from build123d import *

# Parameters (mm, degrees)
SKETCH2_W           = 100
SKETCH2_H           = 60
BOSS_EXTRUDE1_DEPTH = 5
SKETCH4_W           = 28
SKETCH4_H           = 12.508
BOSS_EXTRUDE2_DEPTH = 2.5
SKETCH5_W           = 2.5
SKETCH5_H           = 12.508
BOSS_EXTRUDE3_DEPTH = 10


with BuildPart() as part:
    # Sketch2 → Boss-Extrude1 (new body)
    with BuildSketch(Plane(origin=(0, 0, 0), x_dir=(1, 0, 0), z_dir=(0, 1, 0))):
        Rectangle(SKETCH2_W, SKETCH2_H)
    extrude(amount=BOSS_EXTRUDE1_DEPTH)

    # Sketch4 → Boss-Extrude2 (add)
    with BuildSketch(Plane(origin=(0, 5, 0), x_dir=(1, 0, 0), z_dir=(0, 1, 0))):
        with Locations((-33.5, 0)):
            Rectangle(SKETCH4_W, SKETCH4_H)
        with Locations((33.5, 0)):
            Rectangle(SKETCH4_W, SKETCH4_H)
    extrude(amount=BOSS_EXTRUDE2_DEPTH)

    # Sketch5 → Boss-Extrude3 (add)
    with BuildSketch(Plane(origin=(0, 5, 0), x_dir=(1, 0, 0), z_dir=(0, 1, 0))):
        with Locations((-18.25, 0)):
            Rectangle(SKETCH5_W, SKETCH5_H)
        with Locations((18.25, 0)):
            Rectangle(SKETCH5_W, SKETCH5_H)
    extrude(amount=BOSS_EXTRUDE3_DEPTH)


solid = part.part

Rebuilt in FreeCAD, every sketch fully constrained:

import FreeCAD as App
import Part
import Sketcher

V = App.Vector
Q = App.Units.Quantity


def add_polygon(sketch, points):
    """Adds a closed chain of lines whose ends are joined by coincident constraints."""
    first, n = sketch.GeometryCount, len(points)
    for a, b in zip(points, points[1:] + points[:1]):
        sketch.addGeometry(Part.LineSegment(App.Vector(*a, 0), App.Vector(*b, 0)), False)
    for i in range(n):
        sketch.addConstraint(Sketcher.Constraint("Coincident", first + i, 2, first + (i + 1) % n, 1))

doc = App.newDocument("Part")
params = doc.addObject("Spreadsheet::Sheet", "Params")
for row, (alias, value) in enumerate([
    ("sketch1_width", "100 mm"),
    ("sketch1_height", "60 mm"),
    ("pad1_length", "5 mm"),
    ("sketch2_width", "28 mm"),
    ("pad2_length", "2.5 mm"),
    ("sketch3_width", "2.5 mm"),
    ("pad3_length", "10 mm"),
], start=1):
    params.set(f"A{row}", alias)
    params.set(f"B{row}", "=" + value)
    params.setAlias(f"B{row}", alias)

body = doc.addObject("PartDesign::Body", "Body")

# Sketch on XZ plane
sketch1 = doc.addObject("Sketcher::SketchObject", "Sketch")
body.addObject(sketch1)
sketch1.AttachmentSupport = (doc.XZ_Plane, [""])
sketch1.MapMode = "FlatFace"
add_polygon(sketch1, [(-50, -30), (-50, 30), (50, 30), (50, -30)])  # lines 0-3
sketch1.addConstraint([
    Sketcher.Constraint("Vertical", 0),
    Sketcher.Constraint("Horizontal", 1),
    Sketcher.Constraint("Vertical", 2),
    Sketcher.Constraint("Horizontal", 3),
    Sketcher.Constraint("Symmetric", 0, 2, 2, 2, -1, 1),
    Sketcher.Constraint("DistanceX", 1, 1, 1, 2, Q("100 mm")),
    Sketcher.Constraint("DistanceY", 0, 1, 0, 2, Q("60 mm")),
])
sketch1.setExpression("Constraints[9]", "Params.sketch1_width")
sketch1.setExpression("Constraints[10]", "Params.sketch1_height")
pad1 = doc.addObject("PartDesign::Pad", "Pad")
body.addObject(pad1)
pad1.Profile = sketch1
pad1.setExpression("Length", "Params.pad1_length")
pad1.Reversed = True

# Sketch on XZ plane
sketch2 = doc.addObject("Sketcher::SketchObject", "Sketch001")
body.addObject(sketch2)
sketch2.AttachmentSupport = (doc.XZ_Plane, [""])
sketch2.MapMode = "FlatFace"
sketch2.AttachmentOffset = App.Placement(V(0, 0, -5), App.Rotation())
add_polygon(sketch2, [(-48, -6), (-48, 6), (-20, 6), (-20, -6)])  # lines 0-3
add_polygon(sketch2, [(20, -6), (20, 6), (48, 6), (48, -6)])  # lines 4-7
sketch2.addConstraint([
    Sketcher.Constraint("Vertical", 0),
    Sketcher.Constraint("Horizontal", 1),
    Sketcher.Constraint("Vertical", 2),
    Sketcher.Constraint("Horizontal", 3),
    Sketcher.Constraint("Vertical", 4),
    Sketcher.Constraint("Horizontal", 5),
    Sketcher.Constraint("Vertical", 6),
    Sketcher.Constraint("Horizontal", 7),
    Sketcher.Constraint("Symmetric", 2, 2, 4, 2, -1, 1),
    Sketcher.Constraint("Symmetric", 0, 2, 6, 2, -1, 1),
    Sketcher.Constraint("Horizontal", 1, 2, 4, 2),
    Sketcher.Constraint("DistanceX", 1, 1, 1, 2, Q("28 mm")),
    Sketcher.Constraint("DistanceX", 1, 2, 4, 2, Q("39 mm")),
    Sketcher.Constraint("DistanceY", 0, 1, 0, 2, Q("12.508 mm")),
])
sketch2.setExpression("Constraints[19]", "Params.sketch2_width")
pad2 = doc.addObject("PartDesign::Pad", "Pad001")
body.addObject(pad2)
pad2.Profile = sketch2
pad2.setExpression("Length", "Params.pad2_length")
pad2.Reversed = True

# Sketch on XZ plane
sketch3 = doc.addObject("Sketcher::SketchObject", "Sketch002")
body.addObject(sketch3)
sketch3.AttachmentSupport = (doc.XZ_Plane, [""])
sketch3.MapMode = "FlatFace"
sketch3.AttachmentOffset = App.Placement(V(0, 0, -5), App.Rotation())
add_polygon(sketch3, [(-19.5, -6.3), (-19.5, 6.3), (-17, 6.3), (-17, -6.3)])  # lines 0-3
add_polygon(sketch3, [(17, -6.3), (17, 6.3), (19.5, 6.3), (19.5, -6.3)])  # lines 4-7
sketch3.addConstraint([
    Sketcher.Constraint("Vertical", 0),
    Sketcher.Constraint("Horizontal", 1),
    Sketcher.Constraint("Vertical", 2),
    Sketcher.Constraint("Horizontal", 3),
    Sketcher.Constraint("Vertical", 4),
    Sketcher.Constraint("Horizontal", 5),
    Sketcher.Constraint("Vertical", 6),
    Sketcher.Constraint("Horizontal", 7),
    Sketcher.Constraint("Symmetric", 2, 2, 4, 2, -1, 1),
    Sketcher.Constraint("Symmetric", 0, 2, 6, 2, -1, 1),
    Sketcher.Constraint("Horizontal", 1, 2, 4, 2),
    Sketcher.Constraint("DistanceX", 1, 1, 1, 2, Q("2.5 mm")),
    Sketcher.Constraint("DistanceX", 1, 2, -1, 1, Q("17 mm")),
    Sketcher.Constraint("DistanceY", 0, 1, 0, 2, Q("12.508 mm")),
])
sketch3.setExpression("Constraints[19]", "Params.sketch3_width")
pad3 = doc.addObject("PartDesign::Pad", "Pad002")
body.addObject(pad3)
pad3.Profile = sketch3
pad3.setExpression("Length", "Params.pad3_length")
pad3.Reversed = True

doc.recompute()
